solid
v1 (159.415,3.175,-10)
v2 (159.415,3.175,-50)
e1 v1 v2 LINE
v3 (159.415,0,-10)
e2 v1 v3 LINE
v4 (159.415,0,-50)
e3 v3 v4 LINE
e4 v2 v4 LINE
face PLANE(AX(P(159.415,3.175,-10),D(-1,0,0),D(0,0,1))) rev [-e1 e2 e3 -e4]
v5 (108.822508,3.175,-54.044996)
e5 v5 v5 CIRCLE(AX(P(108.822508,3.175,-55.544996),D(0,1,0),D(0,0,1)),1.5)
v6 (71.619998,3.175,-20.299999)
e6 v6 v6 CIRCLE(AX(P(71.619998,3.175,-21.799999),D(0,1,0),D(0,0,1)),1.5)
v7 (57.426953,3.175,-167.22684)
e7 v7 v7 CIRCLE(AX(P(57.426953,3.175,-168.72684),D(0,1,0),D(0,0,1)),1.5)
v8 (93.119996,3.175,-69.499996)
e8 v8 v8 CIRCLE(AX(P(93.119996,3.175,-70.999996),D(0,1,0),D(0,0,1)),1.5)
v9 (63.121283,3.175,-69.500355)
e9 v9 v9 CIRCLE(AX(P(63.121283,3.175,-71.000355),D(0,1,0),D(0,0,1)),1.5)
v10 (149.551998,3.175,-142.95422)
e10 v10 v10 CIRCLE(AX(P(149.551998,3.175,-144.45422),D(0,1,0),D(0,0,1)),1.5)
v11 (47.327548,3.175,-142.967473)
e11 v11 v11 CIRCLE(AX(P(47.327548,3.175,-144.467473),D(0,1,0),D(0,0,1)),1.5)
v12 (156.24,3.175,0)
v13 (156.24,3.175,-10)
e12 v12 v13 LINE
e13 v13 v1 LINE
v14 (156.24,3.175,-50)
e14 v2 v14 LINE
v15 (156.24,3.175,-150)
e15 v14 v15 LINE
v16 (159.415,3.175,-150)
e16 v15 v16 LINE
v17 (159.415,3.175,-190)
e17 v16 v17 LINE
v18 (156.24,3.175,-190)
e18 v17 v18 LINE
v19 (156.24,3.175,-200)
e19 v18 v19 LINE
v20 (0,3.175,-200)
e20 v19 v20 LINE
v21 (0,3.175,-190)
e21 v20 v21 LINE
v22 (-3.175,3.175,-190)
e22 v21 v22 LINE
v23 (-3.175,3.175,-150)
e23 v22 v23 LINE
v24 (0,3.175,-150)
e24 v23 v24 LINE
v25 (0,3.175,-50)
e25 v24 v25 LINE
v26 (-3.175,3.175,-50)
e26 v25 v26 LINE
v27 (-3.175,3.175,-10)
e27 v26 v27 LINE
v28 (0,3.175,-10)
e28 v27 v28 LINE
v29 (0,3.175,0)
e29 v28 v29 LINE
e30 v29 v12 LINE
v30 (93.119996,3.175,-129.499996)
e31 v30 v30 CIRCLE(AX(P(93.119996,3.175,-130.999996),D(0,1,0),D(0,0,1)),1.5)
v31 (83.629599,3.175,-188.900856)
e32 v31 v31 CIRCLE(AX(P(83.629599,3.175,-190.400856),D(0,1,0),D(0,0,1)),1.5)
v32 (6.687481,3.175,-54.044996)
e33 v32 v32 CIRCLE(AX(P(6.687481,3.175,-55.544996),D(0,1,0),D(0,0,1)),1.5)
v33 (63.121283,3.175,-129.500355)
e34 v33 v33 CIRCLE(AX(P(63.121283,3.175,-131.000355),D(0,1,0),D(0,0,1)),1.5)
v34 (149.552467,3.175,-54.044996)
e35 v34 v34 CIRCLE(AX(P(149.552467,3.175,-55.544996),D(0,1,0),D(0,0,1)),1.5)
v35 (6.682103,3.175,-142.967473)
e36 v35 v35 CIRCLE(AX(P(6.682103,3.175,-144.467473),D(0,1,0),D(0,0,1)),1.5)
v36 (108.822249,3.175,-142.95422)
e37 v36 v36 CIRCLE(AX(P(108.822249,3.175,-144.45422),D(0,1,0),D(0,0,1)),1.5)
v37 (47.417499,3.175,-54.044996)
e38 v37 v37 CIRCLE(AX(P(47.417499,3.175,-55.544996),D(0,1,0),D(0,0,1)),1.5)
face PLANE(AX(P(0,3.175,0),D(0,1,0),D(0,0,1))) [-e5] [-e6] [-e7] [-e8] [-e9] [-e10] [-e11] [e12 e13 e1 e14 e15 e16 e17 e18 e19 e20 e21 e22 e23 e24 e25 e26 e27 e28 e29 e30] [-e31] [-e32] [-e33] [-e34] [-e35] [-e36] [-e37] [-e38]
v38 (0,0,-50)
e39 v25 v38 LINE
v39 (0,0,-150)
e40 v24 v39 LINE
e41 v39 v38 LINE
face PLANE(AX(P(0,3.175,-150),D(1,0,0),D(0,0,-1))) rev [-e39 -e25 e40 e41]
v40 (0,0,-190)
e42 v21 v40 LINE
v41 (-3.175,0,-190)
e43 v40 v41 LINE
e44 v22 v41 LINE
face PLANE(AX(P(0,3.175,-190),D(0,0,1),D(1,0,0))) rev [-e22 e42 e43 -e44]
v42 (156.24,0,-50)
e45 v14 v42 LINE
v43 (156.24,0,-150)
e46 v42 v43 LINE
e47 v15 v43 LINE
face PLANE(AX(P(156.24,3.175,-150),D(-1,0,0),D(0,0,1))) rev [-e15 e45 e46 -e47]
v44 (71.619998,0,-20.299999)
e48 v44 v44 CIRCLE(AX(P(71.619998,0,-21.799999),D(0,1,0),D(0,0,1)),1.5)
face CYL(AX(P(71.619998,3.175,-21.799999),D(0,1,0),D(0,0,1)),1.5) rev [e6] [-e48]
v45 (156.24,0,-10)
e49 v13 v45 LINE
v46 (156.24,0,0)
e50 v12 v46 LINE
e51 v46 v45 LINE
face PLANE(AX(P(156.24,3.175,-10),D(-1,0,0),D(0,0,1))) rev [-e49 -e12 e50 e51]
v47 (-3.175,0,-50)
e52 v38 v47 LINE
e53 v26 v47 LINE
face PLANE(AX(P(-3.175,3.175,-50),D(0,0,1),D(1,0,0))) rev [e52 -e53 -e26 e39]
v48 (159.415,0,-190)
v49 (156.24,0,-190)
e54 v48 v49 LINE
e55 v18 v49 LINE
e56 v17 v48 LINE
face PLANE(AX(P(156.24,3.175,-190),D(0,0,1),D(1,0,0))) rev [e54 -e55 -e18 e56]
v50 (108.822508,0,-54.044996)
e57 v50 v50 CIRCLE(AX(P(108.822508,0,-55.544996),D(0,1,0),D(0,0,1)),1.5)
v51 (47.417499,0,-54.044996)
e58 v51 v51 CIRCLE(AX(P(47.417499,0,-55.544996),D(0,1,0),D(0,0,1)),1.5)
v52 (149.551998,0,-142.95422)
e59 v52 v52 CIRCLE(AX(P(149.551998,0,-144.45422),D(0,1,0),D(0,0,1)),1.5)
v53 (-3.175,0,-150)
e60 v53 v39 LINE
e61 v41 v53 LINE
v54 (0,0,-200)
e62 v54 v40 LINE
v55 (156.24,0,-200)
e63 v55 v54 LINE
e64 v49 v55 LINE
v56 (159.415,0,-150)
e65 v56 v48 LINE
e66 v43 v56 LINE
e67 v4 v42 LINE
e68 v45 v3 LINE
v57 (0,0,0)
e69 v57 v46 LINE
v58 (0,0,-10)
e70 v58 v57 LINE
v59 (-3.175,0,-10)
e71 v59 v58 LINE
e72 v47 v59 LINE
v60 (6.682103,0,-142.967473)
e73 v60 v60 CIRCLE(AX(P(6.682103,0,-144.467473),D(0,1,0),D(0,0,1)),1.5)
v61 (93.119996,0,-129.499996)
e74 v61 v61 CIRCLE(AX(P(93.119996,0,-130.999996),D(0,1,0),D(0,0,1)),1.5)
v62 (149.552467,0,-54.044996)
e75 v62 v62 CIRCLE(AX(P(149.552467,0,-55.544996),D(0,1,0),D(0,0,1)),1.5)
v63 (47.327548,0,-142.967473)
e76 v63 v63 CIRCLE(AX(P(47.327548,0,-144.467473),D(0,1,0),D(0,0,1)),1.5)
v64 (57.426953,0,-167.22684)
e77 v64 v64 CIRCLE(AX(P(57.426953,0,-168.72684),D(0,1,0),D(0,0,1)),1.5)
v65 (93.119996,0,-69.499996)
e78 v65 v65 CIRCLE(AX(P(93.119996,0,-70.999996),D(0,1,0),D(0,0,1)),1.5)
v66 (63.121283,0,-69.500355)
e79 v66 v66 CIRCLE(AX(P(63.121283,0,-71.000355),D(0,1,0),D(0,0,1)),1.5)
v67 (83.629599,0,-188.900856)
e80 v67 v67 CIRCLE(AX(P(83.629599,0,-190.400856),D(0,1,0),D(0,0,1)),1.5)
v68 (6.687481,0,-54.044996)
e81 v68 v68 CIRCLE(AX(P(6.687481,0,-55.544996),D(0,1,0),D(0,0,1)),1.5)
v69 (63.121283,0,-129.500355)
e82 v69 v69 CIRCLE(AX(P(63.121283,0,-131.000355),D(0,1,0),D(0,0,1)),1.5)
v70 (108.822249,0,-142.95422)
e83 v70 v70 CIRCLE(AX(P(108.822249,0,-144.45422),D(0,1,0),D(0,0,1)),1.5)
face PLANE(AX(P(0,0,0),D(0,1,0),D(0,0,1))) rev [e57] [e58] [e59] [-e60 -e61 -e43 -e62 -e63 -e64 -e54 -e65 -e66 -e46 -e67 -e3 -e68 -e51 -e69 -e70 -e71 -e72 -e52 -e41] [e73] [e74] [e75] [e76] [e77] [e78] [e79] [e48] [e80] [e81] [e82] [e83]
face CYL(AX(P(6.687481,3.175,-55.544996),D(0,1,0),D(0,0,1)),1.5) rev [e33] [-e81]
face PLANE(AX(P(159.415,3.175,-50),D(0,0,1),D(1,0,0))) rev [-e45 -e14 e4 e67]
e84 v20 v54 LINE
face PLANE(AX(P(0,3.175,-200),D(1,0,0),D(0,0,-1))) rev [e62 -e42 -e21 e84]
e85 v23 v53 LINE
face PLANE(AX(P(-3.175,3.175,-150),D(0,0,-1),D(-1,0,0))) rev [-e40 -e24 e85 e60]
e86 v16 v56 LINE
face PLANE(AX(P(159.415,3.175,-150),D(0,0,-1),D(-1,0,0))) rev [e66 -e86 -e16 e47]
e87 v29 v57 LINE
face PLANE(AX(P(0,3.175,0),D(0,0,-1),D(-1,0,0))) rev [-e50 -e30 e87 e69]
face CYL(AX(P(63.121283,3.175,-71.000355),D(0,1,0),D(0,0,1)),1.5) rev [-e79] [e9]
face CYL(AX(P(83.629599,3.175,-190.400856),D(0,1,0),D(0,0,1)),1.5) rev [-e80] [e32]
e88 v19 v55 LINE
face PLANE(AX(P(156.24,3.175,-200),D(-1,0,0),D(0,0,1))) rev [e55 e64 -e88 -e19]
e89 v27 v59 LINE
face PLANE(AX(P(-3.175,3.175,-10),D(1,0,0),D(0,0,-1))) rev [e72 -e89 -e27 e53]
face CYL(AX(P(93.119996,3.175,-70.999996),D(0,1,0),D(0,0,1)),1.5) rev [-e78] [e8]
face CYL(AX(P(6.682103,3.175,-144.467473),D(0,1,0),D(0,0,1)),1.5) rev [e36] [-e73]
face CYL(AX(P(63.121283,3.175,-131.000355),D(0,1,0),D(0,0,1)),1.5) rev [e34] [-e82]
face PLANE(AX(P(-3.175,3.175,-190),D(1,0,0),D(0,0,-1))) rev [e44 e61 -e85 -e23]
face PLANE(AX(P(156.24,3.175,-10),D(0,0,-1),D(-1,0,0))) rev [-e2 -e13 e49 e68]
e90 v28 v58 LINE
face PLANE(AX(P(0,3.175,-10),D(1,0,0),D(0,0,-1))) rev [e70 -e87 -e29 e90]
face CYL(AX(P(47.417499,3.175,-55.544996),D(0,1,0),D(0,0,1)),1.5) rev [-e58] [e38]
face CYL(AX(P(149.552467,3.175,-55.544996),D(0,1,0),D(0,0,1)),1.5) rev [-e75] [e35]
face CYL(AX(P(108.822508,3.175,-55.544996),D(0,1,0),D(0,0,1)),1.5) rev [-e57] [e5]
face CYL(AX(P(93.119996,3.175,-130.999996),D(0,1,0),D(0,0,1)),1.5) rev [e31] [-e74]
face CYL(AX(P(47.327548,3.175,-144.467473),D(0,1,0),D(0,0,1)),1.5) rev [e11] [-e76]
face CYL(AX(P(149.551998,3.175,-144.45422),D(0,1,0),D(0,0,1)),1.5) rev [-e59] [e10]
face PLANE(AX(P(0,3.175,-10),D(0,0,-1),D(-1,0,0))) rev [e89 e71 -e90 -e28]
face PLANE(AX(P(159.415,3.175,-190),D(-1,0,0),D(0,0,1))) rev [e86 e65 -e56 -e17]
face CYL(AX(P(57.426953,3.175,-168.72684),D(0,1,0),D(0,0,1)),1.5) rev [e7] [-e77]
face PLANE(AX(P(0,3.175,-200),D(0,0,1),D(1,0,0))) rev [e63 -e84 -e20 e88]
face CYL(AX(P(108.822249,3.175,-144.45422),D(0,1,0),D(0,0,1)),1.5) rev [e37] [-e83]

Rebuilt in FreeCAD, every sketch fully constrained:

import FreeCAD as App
import Part
import Sketcher
from FreeCAD import Vector
Q = App.Units.Quantity

doc = App.newDocument("Part")
params = doc.addObject("Spreadsheet::Sheet", "Params")
for row, (alias, value) in enumerate([
    ("sketch1_height", "40 mm"),
    ("sketch1_height2", "100 mm"),
    ("sketch1_height3", "10 mm"),
    ("sketch1_width", "156.24 mm"),
    ("pad1_length", "3.175 mm"),
    ("sketch2_diameter", "3 mm"),
    ("hole_diameter", "3 mm"),
    ("sketch3_diameter", "3 mm"),
    ("hole2_diameter", "3 mm"),
], start=1):
    params.set(f"A{row}", alias)
    params.set(f"B{row}", "=" + value)
    params.setAlias(f"B{row}", alias)

body = doc.addObject("PartDesign::Body", "Body")

sketch1 = body.newObject("Sketcher::SketchObject", "Sketch")
sketch1.AttachmentSupport = (doc.getObject("XZ_Plane"), [""])
sketch1.MapMode = "FlatFace"
sketch1.addGeometry(Part.LineSegment(Vector(0, -190, 0), Vector(-3.175, -190, 0)), False)
sketch1.addGeometry(Part.LineSegment(Vector(-3.175, -190, 0), Vector(-3.175, -150, 0)), False)
sketch1.addGeometry(Part.LineSegment(Vector(-3.175, -150, 0), Vector(0, -150, 0)), False)
sketch1.addGeometry(Part.LineSegment(Vector(0, -150, 0), Vector(0, -50, 0)), False)
sketch1.addGeometry(Part.LineSegment(Vector(0, -50, 0), Vector(-3.175, -50, 0)), False)
sketch1.addGeometry(Part.LineSegment(Vector(-3.175, -50, 0), Vector(-3.175, -10, 0)), False)
sketch1.addGeometry(Part.LineSegment(Vector(-3.175, -10, 0), Vector(0, -10, 0)), False)
sketch1.addGeometry(Part.LineSegment(Vector(0, -10, 0), Vector(0, 0, 0)), False)
sketch1.addGeometry(Part.LineSegment(Vector(0, 0, 0), Vector(156.24, 0, 0)), False)
sketch1.addGeometry(Part.LineSegment(Vector(156.24, 0, 0), Vector(156.24, -10, 0)), False)
sketch1.addGeometry(Part.LineSegment(Vector(156.24, -10, 0), Vector(159.415, -10, 0)), False)
sketch1.addGeometry(Part.LineSegment(Vector(159.415, -10, 0), Vector(159.415, -50, 0)), False)
sketch1.addGeometry(Part.LineSegment(Vector(159.415, -50, 0), Vector(156.24, -50, 0)), False)
sketch1.addGeometry(Part.LineSegment(Vector(156.24, -50, 0), Vector(156.24, -150, 0)), False)
sketch1.addGeometry(Part.LineSegment(Vector(156.24, -150, 0), Vector(159.415, -150, 0)), False)
sketch1.addGeometry(Part.LineSegment(Vector(159.415, -150, 0), Vector(159.415, -190, 0)), False)
sketch1.addGeometry(Part.LineSegment(Vector(159.415, -190, 0), Vector(156.24, -190, 0)), False)
sketch1.addGeometry(Part.LineSegment(Vector(156.24, -190, 0), Vector(156.24, -200, 0)), False)
sketch1.addGeometry(Part.LineSegment(Vector(156.24, -200, 0), Vector(0, -200, 0)), False)
sketch1.addGeometry(Part.LineSegment(Vector(0, -200, 0), Vector(0, -190, 0)), False)
sketch1.addConstraint(Sketcher.Constraint("Coincident", 0, 2, 1, 1))
sketch1.addConstraint(Sketcher.Constraint("Coincident", 1, 2, 2, 1))
sketch1.addConstraint(Sketcher.Constraint("Coincident", 2, 2, 3, 1))
sketch1.addConstraint(Sketcher.Constraint("Coincident", 3, 2, 4, 1))
sketch1.addConstraint(Sketcher.Constraint("Coincident", 4, 2, 5, 1))
sketch1.addConstraint(Sketcher.Constraint("Coincident", 5, 2, 6, 1))
sketch1.addConstraint(Sketcher.Constraint("Coincident", 6, 2, 7, 1))
sketch1.addConstraint(Sketcher.Constraint("Coincident", 7, 2, 8, 1))
sketch1.addConstraint(Sketcher.Constraint("Coincident", 8, 2, 9, 1))
sketch1.addConstraint(Sketcher.Constraint("Coincident", 9, 2, 10, 1))
sketch1.addConstraint(Sketcher.Constraint("Coincident", 10, 2, 11, 1))
sketch1.addConstraint(Sketcher.Constraint("Coincident", 11, 2, 12, 1))
sketch1.addConstraint(Sketcher.Constraint("Coincident", 12, 2, 13, 1))
sketch1.addConstraint(Sketcher.Constraint("Coincident", 13, 2, 14, 1))
sketch1.addConstraint(Sketcher.Constraint("Coincident", 14, 2, 15, 1))
sketch1.addConstraint(Sketcher.Constraint("Coincident", 15, 2, 16, 1))
sketch1.addConstraint(Sketcher.Constraint("Coincident", 16, 2, 17, 1))
sketch1.addConstraint(Sketcher.Constraint("Coincident", 17, 2, 18, 1))
sketch1.addConstraint(Sketcher.Constraint("Coincident", 18, 2, 19, 1))
sketch1.addConstraint(Sketcher.Constraint("Coincident", 19, 2, 0, 1))
sketch1.addConstraint(Sketcher.Constraint("Horizontal", 0))
sketch1.addConstraint(Sketcher.Constraint("Vertical", 1))
sketch1.addConstraint(Sketcher.Constraint("Horizontal", 2))
sketch1.addConstraint(Sketcher.Constraint("Vertical", 3))
sketch1.addConstraint(Sketcher.Constraint("Horizontal", 4))
sketch1.addConstraint(Sketcher.Constraint("Vertical", 5))
sketch1.addConstraint(Sketcher.Constraint("Horizontal", 6))
sketch1.addConstraint(Sketcher.Constraint("Vertical", 7))
sketch1.addConstraint(Sketcher.Constraint("Horizontal", 8))
sketch1.addConstraint(Sketcher.Constraint("Vertical", 9))
sketch1.addConstraint(Sketcher.Constraint("Horizontal", 10))
sketch1.addConstraint(Sketcher.Constraint("Vertical", 11))
sketch1.addConstraint(Sketcher.Constraint("Horizontal", 12))
sketch1.addConstraint(Sketcher.Constraint("Vertical", 13))
sketch1.addConstraint(Sketcher.Constraint("Horizontal", 14))
sketch1.addConstraint(Sketcher.Constraint("Vertical", 15))
sketch1.addConstraint(Sketcher.Constraint("Horizontal", 16))
sketch1.addConstraint(Sketcher.Constraint("Vertical", 17))
sketch1.addConstraint(Sketcher.Constraint("Horizontal", 18))
sketch1.addConstraint(Sketcher.Constraint("Vertical", 19))
sketch1.addConstraint(Sketcher.Constraint("Coincident", 7, 2, -1, 1))
sketch1.addConstraint(Sketcher.Constraint("PointOnObject", 2, 2, -2))
sketch1.addConstraint(Sketcher.Constraint("PointOnObject", 18, 2, -2))
sketch1.addConstraint(Sketcher.Constraint("Horizontal", 6, 2, 9, 2))
sketch1.addConstraint(Sketcher.Constraint("Horizontal", 4, 2, 11, 2))
sketch1.addConstraint(Sketcher.Constraint("Horizontal", 2, 2, 13, 2))
sketch1.addConstraint(Sketcher.Constraint("Horizontal", 0, 2, 15, 2))
sketch1.addConstraint(Sketcher.Constraint("Vertical", 1, 2, 4, 2))
sketch1.addConstraint(Sketcher.Constraint("Vertical", 9, 2, 12, 2))
sketch1.addConstraint(Sketcher.Constraint("Vertical", 11, 2, 14, 2))
sketch1.addConstraint(Sketcher.Constraint("Vertical", 13, 2, 16, 2))
sketch1.addConstraint(Sketcher.Constraint("Equal", 6, 10))
sketch1.addConstraint(Sketcher.Constraint("Equal", 1, 5))
sketch1.addConstraint(Sketcher.Constraint("Equal", 9, 17))
sketch1.addConstraint(Sketcher.Constraint("DistanceY", 1, 1, 1, 2, Q("40 mm")))
sketch1.addConstraint(Sketcher.Constraint("DistanceY", 3, 1, 3, 2, Q("100 mm")))
sketch1.addConstraint(Sketcher.Constraint("DistanceY", 7, 1, 7, 2, Q("10 mm")))
sketch1.addConstraint(Sketcher.Constraint("DistanceX", 8, 1, 8, 2, Q("156.24 mm")))
sketch1.addConstraint(Sketcher.Constraint("DistanceX", 0, 2, 0, 1, Q("3.175 mm")))
sketch1.setExpression("Constraints[54]", "Params.sketch1_height")
sketch1.setExpression("Constraints[55]", "Params.sketch1_height2")
sketch1.setExpression("Constraints[56]", "Params.sketch1_height3")
sketch1.setExpression("Constraints[57]", "Params.sketch1_width")
pad1 = body.newObject("PartDesign::Pad", "Pad")
pad1.Profile = sketch1
pad1.setExpression("Length", "Params.pad1_length")
pad1.Reversed = True

sketch2 = body.newObject("Sketcher::SketchObject", "Sketch001")
sketch2.AttachmentSupport = (doc.getObject("XZ_Plane"), [""])
sketch2.MapMode = "FlatFace"
sketch2.AttachmentOffset = App.Placement(Vector(0, 0, -3.175), App.Rotation())
sketch2.addGeometry(Part.Circle(Vector(47.327548, -144.467473, 0), Vector(0, 0, 1), 1.5), False)
sketch2.addGeometry(Part.Circle(Vector(6.682103, -144.467473, 0), Vector(0, 0, 1), 1.5), False)
sketch2.addGeometry(Part.Circle(Vector(57.426953, -168.72684, 0), Vector(0, 0, 1), 1.5), False)
sketch2.addGeometry(Part.Circle(Vector(83.629599, -190.400856, 0), Vector(0, 0, 1), 1.5), False)
sketch2.addGeometry(Part.Circle(Vector(108.822249, -144.45422, 0), Vector(0, 0, 1), 1.5), False)
sketch2.addGeometry(Part.Circle(Vector(149.551998, -144.45422, 0), Vector(0, 0, 1), 1.5), False)
sketch2.addGeometry(Part.Circle(Vector(47.417499, -55.544996, 0), Vector(0, 0, 1), 1.5), False)
sketch2.addGeometry(Part.Circle(Vector(108.822508, -55.544996, 0), Vector(0, 0, 1), 1.5), False)
sketch2.addGeometry(Part.Circle(Vector(149.552467, -55.544996, 0), Vector(0, 0, 1), 1.5), False)
sketch2.addGeometry(Part.Circle(Vector(71.619998, -21.799999, 0), Vector(0, 0, 1), 1.5), False)
sketch2.addGeometry(Part.Circle(Vector(6.687481, -55.544996, 0), Vector(0, 0, 1), 1.5), False)
sketch2.addConstraint(Sketcher.Constraint("Equal", 0, 1))
sketch2.addConstraint(Sketcher.Constraint("Equal", 1, 2))
sketch2.addConstraint(Sketcher.Constraint("Equal", 2, 3))
sketch2.addConstraint(Sketcher.Constraint("Equal", 3, 4))
sketch2.addConstraint(Sketcher.Constraint("Equal", 4, 5))
sketch2.addConstraint(Sketcher.Constraint("Equal", 5, 6))
sketch2.addConstraint(Sketcher.Constraint("Equal", 6, 7))
sketch2.addConstraint(Sketcher.Constraint("Equal", 7, 8))
sketch2.addConstraint(Sketcher.Constraint("Equal", 8, 9))
sketch2.addConstraint(Sketcher.Constraint("Equal", 9, 10))
sketch2.addConstraint(Sketcher.Constraint("Horizontal", 0, 3, 1, 3))
sketch2.addConstraint(Sketcher.Constraint("Horizontal", 4, 3, 5, 3))
sketch2.addConstraint(Sketcher.Constraint("Horizontal", 6, 3, 7, 3))
sketch2.addConstraint(Sketcher.Constraint("Horizontal", 7, 3, 8, 3))
sketch2.addConstraint(Sketcher.Constraint("Horizontal", 8, 3, 10, 3))
sketch2.addConstraint(Sketcher.Constraint("Diameter", 0, Q("3 mm")))
sketch2.addConstraint(Sketcher.Constraint("DistanceY", 9, 3, -1, 1, Q("21.799999 mm")))
sketch2.addConstraint(Sketcher.Constraint("DistanceX", -1, 1, 5, 3, Q("149.551998 mm")))
sketch2.addConstraint(Sketcher.Constraint("DistanceX", -1, 1, 3, 3, Q("83.629599 mm")))
sketch2.addConstraint(Sketcher.Constraint("DistanceX", -1, 1, 6, 3, Q("47.417499 mm")))
sketch2.addConstraint(Sketcher.Constraint("DistanceX", 0, 3, 4, 3, Q("61.494701 mm")))
sketch2.addConstraint(Sketcher.Constraint("DistanceX", 6, 3, 9, 3, Q("24.202499 mm")))
sketch2.addConstraint(Sketcher.Constraint("DistanceX", -1, 1, 0, 3, Q("47.327548 mm")))
sketch2.addConstraint(Sketcher.Constraint("DistanceY", 2, 3, -1, 1, Q("168.72684 mm")))
sketch2.addConstraint(Sketcher.Constraint("DistanceY", 4, 3, -1, 1, Q("144.45422 mm")))
sketch2.addConstraint(Sketcher.Constraint("DistanceX", -1, 1, 7, 3, Q("108.822508 mm")))
sketch2.addConstraint(Sketcher.Constraint("DistanceX", -1, 1, 10, 3, Q("6.687481 mm")))
sketch2.addConstraint(Sketcher.Constraint("DistanceX", 1, 3, 2, 3, Q("50.744851 mm")))
sketch2.addConstraint(Sketcher.Constraint("DistanceX", 7, 3, 8, 3, Q("40.729959 mm")))
sketch2.addConstraint(Sketcher.Constraint("DistanceX", 1, 3, 10, 3, Q("0.005379 mm")))
sketch2.addConstraint(Sketcher.Constraint("DistanceY", 0, 3, -1, 1, Q("144.467473 mm")))
sketch2.addConstraint(Sketcher.Constraint("DistanceY", 3, 3, -1, 1, Q("190.400856 mm")))
sketch2.addConstraint(Sketcher.Constraint("DistanceY", 6, 3, -1, 1, Q("55.544996 mm")))
sketch2.setExpression("Constraints[15]", "Params.sketch2_diameter")
doc.recompute()
hole = body.newObject("PartDesign::Hole", "Hole")
hole.Profile = sketch2
hole.ThreadType = "None"
hole.setExpression("Diameter", "Params.hole_diameter")
hole.DepthType = "ThroughAll"
hole.Reversed = True

sketch3 = body.newObject("Sketcher::SketchObject", "Sketch002")
sketch3.AttachmentSupport = (doc.getObject("XZ_Plane"), [""])
sketch3.MapMode = "FlatFace"
sketch3.AttachmentOffset = App.Placement(Vector(0, 0, -3.175), App.Rotation())
sketch3.addGeometry(Part.Circle(Vector(63.121283, -131.000355, 0), Vector(0, 0, 1), 1.5), False)
sketch3.addGeometry(Part.Circle(Vector(93.119996, -130.999996, 0), Vector(0, 0, 1), 1.5), False)
sketch3.addGeometry(Part.Circle(Vector(63.121283, -71.000355, 0), Vector(0, 0, 1), 1.5), False)
sketch3.addGeometry(Part.Circle(Vector(93.119996, -70.999996, 0), Vector(0, 0, 1), 1.5), False)
sketch3.addConstraint(Sketcher.Constraint("Equal", 0, 1))
sketch3.addConstraint(Sketcher.Constraint("Equal", 1, 2))
sketch3.addConstraint(Sketcher.Constraint("Equal", 2, 3))
sketch3.addConstraint(Sketcher.Constraint("Vertical", 0, 3, 2, 3))
sketch3.addConstraint(Sketcher.Constraint("Vertical", 1, 3, 3, 3))
sketch3.addConstraint(Sketcher.Constraint("Diameter", 0, Q("3 mm")))
sketch3.addConstraint(Sketcher.Constraint("DistanceY", 0, 3, 2, 3, Q("60 mm")))
sketch3.addConstraint(Sketcher.Constraint("DistanceY", 1, 3, 3, 3, Q("60 mm")))
sketch3.addConstraint(Sketcher.Constraint("DistanceY", 0, 3, 1, 3, Q("0.000358 mm")))
sketch3.addConstraint(Sketcher.Constraint("DistanceX", -1, 1, 0, 3, Q("63.121283 mm")))
sketch3.addConstraint(Sketcher.Constraint("DistanceY", 0, 3, -1, 1, Q("131.000355 mm")))
sketch3.addConstraint(Sketcher.Constraint("DistanceX", -1, 1, 1, 3, Q("93.119996 mm")))
sketch3.setExpression("Constraints[5]", "Params.sketch3_diameter")
doc.recompute()
hole2 = body.newObject("PartDesign::Hole", "Hole001")
hole2.Profile = sketch3
hole2.ThreadType = "None"
hole2.setExpression("Diameter", "Params.hole2_diameter")
hole2.DepthType = "ThroughAll"
hole2.Reversed = True

doc.recompute()
